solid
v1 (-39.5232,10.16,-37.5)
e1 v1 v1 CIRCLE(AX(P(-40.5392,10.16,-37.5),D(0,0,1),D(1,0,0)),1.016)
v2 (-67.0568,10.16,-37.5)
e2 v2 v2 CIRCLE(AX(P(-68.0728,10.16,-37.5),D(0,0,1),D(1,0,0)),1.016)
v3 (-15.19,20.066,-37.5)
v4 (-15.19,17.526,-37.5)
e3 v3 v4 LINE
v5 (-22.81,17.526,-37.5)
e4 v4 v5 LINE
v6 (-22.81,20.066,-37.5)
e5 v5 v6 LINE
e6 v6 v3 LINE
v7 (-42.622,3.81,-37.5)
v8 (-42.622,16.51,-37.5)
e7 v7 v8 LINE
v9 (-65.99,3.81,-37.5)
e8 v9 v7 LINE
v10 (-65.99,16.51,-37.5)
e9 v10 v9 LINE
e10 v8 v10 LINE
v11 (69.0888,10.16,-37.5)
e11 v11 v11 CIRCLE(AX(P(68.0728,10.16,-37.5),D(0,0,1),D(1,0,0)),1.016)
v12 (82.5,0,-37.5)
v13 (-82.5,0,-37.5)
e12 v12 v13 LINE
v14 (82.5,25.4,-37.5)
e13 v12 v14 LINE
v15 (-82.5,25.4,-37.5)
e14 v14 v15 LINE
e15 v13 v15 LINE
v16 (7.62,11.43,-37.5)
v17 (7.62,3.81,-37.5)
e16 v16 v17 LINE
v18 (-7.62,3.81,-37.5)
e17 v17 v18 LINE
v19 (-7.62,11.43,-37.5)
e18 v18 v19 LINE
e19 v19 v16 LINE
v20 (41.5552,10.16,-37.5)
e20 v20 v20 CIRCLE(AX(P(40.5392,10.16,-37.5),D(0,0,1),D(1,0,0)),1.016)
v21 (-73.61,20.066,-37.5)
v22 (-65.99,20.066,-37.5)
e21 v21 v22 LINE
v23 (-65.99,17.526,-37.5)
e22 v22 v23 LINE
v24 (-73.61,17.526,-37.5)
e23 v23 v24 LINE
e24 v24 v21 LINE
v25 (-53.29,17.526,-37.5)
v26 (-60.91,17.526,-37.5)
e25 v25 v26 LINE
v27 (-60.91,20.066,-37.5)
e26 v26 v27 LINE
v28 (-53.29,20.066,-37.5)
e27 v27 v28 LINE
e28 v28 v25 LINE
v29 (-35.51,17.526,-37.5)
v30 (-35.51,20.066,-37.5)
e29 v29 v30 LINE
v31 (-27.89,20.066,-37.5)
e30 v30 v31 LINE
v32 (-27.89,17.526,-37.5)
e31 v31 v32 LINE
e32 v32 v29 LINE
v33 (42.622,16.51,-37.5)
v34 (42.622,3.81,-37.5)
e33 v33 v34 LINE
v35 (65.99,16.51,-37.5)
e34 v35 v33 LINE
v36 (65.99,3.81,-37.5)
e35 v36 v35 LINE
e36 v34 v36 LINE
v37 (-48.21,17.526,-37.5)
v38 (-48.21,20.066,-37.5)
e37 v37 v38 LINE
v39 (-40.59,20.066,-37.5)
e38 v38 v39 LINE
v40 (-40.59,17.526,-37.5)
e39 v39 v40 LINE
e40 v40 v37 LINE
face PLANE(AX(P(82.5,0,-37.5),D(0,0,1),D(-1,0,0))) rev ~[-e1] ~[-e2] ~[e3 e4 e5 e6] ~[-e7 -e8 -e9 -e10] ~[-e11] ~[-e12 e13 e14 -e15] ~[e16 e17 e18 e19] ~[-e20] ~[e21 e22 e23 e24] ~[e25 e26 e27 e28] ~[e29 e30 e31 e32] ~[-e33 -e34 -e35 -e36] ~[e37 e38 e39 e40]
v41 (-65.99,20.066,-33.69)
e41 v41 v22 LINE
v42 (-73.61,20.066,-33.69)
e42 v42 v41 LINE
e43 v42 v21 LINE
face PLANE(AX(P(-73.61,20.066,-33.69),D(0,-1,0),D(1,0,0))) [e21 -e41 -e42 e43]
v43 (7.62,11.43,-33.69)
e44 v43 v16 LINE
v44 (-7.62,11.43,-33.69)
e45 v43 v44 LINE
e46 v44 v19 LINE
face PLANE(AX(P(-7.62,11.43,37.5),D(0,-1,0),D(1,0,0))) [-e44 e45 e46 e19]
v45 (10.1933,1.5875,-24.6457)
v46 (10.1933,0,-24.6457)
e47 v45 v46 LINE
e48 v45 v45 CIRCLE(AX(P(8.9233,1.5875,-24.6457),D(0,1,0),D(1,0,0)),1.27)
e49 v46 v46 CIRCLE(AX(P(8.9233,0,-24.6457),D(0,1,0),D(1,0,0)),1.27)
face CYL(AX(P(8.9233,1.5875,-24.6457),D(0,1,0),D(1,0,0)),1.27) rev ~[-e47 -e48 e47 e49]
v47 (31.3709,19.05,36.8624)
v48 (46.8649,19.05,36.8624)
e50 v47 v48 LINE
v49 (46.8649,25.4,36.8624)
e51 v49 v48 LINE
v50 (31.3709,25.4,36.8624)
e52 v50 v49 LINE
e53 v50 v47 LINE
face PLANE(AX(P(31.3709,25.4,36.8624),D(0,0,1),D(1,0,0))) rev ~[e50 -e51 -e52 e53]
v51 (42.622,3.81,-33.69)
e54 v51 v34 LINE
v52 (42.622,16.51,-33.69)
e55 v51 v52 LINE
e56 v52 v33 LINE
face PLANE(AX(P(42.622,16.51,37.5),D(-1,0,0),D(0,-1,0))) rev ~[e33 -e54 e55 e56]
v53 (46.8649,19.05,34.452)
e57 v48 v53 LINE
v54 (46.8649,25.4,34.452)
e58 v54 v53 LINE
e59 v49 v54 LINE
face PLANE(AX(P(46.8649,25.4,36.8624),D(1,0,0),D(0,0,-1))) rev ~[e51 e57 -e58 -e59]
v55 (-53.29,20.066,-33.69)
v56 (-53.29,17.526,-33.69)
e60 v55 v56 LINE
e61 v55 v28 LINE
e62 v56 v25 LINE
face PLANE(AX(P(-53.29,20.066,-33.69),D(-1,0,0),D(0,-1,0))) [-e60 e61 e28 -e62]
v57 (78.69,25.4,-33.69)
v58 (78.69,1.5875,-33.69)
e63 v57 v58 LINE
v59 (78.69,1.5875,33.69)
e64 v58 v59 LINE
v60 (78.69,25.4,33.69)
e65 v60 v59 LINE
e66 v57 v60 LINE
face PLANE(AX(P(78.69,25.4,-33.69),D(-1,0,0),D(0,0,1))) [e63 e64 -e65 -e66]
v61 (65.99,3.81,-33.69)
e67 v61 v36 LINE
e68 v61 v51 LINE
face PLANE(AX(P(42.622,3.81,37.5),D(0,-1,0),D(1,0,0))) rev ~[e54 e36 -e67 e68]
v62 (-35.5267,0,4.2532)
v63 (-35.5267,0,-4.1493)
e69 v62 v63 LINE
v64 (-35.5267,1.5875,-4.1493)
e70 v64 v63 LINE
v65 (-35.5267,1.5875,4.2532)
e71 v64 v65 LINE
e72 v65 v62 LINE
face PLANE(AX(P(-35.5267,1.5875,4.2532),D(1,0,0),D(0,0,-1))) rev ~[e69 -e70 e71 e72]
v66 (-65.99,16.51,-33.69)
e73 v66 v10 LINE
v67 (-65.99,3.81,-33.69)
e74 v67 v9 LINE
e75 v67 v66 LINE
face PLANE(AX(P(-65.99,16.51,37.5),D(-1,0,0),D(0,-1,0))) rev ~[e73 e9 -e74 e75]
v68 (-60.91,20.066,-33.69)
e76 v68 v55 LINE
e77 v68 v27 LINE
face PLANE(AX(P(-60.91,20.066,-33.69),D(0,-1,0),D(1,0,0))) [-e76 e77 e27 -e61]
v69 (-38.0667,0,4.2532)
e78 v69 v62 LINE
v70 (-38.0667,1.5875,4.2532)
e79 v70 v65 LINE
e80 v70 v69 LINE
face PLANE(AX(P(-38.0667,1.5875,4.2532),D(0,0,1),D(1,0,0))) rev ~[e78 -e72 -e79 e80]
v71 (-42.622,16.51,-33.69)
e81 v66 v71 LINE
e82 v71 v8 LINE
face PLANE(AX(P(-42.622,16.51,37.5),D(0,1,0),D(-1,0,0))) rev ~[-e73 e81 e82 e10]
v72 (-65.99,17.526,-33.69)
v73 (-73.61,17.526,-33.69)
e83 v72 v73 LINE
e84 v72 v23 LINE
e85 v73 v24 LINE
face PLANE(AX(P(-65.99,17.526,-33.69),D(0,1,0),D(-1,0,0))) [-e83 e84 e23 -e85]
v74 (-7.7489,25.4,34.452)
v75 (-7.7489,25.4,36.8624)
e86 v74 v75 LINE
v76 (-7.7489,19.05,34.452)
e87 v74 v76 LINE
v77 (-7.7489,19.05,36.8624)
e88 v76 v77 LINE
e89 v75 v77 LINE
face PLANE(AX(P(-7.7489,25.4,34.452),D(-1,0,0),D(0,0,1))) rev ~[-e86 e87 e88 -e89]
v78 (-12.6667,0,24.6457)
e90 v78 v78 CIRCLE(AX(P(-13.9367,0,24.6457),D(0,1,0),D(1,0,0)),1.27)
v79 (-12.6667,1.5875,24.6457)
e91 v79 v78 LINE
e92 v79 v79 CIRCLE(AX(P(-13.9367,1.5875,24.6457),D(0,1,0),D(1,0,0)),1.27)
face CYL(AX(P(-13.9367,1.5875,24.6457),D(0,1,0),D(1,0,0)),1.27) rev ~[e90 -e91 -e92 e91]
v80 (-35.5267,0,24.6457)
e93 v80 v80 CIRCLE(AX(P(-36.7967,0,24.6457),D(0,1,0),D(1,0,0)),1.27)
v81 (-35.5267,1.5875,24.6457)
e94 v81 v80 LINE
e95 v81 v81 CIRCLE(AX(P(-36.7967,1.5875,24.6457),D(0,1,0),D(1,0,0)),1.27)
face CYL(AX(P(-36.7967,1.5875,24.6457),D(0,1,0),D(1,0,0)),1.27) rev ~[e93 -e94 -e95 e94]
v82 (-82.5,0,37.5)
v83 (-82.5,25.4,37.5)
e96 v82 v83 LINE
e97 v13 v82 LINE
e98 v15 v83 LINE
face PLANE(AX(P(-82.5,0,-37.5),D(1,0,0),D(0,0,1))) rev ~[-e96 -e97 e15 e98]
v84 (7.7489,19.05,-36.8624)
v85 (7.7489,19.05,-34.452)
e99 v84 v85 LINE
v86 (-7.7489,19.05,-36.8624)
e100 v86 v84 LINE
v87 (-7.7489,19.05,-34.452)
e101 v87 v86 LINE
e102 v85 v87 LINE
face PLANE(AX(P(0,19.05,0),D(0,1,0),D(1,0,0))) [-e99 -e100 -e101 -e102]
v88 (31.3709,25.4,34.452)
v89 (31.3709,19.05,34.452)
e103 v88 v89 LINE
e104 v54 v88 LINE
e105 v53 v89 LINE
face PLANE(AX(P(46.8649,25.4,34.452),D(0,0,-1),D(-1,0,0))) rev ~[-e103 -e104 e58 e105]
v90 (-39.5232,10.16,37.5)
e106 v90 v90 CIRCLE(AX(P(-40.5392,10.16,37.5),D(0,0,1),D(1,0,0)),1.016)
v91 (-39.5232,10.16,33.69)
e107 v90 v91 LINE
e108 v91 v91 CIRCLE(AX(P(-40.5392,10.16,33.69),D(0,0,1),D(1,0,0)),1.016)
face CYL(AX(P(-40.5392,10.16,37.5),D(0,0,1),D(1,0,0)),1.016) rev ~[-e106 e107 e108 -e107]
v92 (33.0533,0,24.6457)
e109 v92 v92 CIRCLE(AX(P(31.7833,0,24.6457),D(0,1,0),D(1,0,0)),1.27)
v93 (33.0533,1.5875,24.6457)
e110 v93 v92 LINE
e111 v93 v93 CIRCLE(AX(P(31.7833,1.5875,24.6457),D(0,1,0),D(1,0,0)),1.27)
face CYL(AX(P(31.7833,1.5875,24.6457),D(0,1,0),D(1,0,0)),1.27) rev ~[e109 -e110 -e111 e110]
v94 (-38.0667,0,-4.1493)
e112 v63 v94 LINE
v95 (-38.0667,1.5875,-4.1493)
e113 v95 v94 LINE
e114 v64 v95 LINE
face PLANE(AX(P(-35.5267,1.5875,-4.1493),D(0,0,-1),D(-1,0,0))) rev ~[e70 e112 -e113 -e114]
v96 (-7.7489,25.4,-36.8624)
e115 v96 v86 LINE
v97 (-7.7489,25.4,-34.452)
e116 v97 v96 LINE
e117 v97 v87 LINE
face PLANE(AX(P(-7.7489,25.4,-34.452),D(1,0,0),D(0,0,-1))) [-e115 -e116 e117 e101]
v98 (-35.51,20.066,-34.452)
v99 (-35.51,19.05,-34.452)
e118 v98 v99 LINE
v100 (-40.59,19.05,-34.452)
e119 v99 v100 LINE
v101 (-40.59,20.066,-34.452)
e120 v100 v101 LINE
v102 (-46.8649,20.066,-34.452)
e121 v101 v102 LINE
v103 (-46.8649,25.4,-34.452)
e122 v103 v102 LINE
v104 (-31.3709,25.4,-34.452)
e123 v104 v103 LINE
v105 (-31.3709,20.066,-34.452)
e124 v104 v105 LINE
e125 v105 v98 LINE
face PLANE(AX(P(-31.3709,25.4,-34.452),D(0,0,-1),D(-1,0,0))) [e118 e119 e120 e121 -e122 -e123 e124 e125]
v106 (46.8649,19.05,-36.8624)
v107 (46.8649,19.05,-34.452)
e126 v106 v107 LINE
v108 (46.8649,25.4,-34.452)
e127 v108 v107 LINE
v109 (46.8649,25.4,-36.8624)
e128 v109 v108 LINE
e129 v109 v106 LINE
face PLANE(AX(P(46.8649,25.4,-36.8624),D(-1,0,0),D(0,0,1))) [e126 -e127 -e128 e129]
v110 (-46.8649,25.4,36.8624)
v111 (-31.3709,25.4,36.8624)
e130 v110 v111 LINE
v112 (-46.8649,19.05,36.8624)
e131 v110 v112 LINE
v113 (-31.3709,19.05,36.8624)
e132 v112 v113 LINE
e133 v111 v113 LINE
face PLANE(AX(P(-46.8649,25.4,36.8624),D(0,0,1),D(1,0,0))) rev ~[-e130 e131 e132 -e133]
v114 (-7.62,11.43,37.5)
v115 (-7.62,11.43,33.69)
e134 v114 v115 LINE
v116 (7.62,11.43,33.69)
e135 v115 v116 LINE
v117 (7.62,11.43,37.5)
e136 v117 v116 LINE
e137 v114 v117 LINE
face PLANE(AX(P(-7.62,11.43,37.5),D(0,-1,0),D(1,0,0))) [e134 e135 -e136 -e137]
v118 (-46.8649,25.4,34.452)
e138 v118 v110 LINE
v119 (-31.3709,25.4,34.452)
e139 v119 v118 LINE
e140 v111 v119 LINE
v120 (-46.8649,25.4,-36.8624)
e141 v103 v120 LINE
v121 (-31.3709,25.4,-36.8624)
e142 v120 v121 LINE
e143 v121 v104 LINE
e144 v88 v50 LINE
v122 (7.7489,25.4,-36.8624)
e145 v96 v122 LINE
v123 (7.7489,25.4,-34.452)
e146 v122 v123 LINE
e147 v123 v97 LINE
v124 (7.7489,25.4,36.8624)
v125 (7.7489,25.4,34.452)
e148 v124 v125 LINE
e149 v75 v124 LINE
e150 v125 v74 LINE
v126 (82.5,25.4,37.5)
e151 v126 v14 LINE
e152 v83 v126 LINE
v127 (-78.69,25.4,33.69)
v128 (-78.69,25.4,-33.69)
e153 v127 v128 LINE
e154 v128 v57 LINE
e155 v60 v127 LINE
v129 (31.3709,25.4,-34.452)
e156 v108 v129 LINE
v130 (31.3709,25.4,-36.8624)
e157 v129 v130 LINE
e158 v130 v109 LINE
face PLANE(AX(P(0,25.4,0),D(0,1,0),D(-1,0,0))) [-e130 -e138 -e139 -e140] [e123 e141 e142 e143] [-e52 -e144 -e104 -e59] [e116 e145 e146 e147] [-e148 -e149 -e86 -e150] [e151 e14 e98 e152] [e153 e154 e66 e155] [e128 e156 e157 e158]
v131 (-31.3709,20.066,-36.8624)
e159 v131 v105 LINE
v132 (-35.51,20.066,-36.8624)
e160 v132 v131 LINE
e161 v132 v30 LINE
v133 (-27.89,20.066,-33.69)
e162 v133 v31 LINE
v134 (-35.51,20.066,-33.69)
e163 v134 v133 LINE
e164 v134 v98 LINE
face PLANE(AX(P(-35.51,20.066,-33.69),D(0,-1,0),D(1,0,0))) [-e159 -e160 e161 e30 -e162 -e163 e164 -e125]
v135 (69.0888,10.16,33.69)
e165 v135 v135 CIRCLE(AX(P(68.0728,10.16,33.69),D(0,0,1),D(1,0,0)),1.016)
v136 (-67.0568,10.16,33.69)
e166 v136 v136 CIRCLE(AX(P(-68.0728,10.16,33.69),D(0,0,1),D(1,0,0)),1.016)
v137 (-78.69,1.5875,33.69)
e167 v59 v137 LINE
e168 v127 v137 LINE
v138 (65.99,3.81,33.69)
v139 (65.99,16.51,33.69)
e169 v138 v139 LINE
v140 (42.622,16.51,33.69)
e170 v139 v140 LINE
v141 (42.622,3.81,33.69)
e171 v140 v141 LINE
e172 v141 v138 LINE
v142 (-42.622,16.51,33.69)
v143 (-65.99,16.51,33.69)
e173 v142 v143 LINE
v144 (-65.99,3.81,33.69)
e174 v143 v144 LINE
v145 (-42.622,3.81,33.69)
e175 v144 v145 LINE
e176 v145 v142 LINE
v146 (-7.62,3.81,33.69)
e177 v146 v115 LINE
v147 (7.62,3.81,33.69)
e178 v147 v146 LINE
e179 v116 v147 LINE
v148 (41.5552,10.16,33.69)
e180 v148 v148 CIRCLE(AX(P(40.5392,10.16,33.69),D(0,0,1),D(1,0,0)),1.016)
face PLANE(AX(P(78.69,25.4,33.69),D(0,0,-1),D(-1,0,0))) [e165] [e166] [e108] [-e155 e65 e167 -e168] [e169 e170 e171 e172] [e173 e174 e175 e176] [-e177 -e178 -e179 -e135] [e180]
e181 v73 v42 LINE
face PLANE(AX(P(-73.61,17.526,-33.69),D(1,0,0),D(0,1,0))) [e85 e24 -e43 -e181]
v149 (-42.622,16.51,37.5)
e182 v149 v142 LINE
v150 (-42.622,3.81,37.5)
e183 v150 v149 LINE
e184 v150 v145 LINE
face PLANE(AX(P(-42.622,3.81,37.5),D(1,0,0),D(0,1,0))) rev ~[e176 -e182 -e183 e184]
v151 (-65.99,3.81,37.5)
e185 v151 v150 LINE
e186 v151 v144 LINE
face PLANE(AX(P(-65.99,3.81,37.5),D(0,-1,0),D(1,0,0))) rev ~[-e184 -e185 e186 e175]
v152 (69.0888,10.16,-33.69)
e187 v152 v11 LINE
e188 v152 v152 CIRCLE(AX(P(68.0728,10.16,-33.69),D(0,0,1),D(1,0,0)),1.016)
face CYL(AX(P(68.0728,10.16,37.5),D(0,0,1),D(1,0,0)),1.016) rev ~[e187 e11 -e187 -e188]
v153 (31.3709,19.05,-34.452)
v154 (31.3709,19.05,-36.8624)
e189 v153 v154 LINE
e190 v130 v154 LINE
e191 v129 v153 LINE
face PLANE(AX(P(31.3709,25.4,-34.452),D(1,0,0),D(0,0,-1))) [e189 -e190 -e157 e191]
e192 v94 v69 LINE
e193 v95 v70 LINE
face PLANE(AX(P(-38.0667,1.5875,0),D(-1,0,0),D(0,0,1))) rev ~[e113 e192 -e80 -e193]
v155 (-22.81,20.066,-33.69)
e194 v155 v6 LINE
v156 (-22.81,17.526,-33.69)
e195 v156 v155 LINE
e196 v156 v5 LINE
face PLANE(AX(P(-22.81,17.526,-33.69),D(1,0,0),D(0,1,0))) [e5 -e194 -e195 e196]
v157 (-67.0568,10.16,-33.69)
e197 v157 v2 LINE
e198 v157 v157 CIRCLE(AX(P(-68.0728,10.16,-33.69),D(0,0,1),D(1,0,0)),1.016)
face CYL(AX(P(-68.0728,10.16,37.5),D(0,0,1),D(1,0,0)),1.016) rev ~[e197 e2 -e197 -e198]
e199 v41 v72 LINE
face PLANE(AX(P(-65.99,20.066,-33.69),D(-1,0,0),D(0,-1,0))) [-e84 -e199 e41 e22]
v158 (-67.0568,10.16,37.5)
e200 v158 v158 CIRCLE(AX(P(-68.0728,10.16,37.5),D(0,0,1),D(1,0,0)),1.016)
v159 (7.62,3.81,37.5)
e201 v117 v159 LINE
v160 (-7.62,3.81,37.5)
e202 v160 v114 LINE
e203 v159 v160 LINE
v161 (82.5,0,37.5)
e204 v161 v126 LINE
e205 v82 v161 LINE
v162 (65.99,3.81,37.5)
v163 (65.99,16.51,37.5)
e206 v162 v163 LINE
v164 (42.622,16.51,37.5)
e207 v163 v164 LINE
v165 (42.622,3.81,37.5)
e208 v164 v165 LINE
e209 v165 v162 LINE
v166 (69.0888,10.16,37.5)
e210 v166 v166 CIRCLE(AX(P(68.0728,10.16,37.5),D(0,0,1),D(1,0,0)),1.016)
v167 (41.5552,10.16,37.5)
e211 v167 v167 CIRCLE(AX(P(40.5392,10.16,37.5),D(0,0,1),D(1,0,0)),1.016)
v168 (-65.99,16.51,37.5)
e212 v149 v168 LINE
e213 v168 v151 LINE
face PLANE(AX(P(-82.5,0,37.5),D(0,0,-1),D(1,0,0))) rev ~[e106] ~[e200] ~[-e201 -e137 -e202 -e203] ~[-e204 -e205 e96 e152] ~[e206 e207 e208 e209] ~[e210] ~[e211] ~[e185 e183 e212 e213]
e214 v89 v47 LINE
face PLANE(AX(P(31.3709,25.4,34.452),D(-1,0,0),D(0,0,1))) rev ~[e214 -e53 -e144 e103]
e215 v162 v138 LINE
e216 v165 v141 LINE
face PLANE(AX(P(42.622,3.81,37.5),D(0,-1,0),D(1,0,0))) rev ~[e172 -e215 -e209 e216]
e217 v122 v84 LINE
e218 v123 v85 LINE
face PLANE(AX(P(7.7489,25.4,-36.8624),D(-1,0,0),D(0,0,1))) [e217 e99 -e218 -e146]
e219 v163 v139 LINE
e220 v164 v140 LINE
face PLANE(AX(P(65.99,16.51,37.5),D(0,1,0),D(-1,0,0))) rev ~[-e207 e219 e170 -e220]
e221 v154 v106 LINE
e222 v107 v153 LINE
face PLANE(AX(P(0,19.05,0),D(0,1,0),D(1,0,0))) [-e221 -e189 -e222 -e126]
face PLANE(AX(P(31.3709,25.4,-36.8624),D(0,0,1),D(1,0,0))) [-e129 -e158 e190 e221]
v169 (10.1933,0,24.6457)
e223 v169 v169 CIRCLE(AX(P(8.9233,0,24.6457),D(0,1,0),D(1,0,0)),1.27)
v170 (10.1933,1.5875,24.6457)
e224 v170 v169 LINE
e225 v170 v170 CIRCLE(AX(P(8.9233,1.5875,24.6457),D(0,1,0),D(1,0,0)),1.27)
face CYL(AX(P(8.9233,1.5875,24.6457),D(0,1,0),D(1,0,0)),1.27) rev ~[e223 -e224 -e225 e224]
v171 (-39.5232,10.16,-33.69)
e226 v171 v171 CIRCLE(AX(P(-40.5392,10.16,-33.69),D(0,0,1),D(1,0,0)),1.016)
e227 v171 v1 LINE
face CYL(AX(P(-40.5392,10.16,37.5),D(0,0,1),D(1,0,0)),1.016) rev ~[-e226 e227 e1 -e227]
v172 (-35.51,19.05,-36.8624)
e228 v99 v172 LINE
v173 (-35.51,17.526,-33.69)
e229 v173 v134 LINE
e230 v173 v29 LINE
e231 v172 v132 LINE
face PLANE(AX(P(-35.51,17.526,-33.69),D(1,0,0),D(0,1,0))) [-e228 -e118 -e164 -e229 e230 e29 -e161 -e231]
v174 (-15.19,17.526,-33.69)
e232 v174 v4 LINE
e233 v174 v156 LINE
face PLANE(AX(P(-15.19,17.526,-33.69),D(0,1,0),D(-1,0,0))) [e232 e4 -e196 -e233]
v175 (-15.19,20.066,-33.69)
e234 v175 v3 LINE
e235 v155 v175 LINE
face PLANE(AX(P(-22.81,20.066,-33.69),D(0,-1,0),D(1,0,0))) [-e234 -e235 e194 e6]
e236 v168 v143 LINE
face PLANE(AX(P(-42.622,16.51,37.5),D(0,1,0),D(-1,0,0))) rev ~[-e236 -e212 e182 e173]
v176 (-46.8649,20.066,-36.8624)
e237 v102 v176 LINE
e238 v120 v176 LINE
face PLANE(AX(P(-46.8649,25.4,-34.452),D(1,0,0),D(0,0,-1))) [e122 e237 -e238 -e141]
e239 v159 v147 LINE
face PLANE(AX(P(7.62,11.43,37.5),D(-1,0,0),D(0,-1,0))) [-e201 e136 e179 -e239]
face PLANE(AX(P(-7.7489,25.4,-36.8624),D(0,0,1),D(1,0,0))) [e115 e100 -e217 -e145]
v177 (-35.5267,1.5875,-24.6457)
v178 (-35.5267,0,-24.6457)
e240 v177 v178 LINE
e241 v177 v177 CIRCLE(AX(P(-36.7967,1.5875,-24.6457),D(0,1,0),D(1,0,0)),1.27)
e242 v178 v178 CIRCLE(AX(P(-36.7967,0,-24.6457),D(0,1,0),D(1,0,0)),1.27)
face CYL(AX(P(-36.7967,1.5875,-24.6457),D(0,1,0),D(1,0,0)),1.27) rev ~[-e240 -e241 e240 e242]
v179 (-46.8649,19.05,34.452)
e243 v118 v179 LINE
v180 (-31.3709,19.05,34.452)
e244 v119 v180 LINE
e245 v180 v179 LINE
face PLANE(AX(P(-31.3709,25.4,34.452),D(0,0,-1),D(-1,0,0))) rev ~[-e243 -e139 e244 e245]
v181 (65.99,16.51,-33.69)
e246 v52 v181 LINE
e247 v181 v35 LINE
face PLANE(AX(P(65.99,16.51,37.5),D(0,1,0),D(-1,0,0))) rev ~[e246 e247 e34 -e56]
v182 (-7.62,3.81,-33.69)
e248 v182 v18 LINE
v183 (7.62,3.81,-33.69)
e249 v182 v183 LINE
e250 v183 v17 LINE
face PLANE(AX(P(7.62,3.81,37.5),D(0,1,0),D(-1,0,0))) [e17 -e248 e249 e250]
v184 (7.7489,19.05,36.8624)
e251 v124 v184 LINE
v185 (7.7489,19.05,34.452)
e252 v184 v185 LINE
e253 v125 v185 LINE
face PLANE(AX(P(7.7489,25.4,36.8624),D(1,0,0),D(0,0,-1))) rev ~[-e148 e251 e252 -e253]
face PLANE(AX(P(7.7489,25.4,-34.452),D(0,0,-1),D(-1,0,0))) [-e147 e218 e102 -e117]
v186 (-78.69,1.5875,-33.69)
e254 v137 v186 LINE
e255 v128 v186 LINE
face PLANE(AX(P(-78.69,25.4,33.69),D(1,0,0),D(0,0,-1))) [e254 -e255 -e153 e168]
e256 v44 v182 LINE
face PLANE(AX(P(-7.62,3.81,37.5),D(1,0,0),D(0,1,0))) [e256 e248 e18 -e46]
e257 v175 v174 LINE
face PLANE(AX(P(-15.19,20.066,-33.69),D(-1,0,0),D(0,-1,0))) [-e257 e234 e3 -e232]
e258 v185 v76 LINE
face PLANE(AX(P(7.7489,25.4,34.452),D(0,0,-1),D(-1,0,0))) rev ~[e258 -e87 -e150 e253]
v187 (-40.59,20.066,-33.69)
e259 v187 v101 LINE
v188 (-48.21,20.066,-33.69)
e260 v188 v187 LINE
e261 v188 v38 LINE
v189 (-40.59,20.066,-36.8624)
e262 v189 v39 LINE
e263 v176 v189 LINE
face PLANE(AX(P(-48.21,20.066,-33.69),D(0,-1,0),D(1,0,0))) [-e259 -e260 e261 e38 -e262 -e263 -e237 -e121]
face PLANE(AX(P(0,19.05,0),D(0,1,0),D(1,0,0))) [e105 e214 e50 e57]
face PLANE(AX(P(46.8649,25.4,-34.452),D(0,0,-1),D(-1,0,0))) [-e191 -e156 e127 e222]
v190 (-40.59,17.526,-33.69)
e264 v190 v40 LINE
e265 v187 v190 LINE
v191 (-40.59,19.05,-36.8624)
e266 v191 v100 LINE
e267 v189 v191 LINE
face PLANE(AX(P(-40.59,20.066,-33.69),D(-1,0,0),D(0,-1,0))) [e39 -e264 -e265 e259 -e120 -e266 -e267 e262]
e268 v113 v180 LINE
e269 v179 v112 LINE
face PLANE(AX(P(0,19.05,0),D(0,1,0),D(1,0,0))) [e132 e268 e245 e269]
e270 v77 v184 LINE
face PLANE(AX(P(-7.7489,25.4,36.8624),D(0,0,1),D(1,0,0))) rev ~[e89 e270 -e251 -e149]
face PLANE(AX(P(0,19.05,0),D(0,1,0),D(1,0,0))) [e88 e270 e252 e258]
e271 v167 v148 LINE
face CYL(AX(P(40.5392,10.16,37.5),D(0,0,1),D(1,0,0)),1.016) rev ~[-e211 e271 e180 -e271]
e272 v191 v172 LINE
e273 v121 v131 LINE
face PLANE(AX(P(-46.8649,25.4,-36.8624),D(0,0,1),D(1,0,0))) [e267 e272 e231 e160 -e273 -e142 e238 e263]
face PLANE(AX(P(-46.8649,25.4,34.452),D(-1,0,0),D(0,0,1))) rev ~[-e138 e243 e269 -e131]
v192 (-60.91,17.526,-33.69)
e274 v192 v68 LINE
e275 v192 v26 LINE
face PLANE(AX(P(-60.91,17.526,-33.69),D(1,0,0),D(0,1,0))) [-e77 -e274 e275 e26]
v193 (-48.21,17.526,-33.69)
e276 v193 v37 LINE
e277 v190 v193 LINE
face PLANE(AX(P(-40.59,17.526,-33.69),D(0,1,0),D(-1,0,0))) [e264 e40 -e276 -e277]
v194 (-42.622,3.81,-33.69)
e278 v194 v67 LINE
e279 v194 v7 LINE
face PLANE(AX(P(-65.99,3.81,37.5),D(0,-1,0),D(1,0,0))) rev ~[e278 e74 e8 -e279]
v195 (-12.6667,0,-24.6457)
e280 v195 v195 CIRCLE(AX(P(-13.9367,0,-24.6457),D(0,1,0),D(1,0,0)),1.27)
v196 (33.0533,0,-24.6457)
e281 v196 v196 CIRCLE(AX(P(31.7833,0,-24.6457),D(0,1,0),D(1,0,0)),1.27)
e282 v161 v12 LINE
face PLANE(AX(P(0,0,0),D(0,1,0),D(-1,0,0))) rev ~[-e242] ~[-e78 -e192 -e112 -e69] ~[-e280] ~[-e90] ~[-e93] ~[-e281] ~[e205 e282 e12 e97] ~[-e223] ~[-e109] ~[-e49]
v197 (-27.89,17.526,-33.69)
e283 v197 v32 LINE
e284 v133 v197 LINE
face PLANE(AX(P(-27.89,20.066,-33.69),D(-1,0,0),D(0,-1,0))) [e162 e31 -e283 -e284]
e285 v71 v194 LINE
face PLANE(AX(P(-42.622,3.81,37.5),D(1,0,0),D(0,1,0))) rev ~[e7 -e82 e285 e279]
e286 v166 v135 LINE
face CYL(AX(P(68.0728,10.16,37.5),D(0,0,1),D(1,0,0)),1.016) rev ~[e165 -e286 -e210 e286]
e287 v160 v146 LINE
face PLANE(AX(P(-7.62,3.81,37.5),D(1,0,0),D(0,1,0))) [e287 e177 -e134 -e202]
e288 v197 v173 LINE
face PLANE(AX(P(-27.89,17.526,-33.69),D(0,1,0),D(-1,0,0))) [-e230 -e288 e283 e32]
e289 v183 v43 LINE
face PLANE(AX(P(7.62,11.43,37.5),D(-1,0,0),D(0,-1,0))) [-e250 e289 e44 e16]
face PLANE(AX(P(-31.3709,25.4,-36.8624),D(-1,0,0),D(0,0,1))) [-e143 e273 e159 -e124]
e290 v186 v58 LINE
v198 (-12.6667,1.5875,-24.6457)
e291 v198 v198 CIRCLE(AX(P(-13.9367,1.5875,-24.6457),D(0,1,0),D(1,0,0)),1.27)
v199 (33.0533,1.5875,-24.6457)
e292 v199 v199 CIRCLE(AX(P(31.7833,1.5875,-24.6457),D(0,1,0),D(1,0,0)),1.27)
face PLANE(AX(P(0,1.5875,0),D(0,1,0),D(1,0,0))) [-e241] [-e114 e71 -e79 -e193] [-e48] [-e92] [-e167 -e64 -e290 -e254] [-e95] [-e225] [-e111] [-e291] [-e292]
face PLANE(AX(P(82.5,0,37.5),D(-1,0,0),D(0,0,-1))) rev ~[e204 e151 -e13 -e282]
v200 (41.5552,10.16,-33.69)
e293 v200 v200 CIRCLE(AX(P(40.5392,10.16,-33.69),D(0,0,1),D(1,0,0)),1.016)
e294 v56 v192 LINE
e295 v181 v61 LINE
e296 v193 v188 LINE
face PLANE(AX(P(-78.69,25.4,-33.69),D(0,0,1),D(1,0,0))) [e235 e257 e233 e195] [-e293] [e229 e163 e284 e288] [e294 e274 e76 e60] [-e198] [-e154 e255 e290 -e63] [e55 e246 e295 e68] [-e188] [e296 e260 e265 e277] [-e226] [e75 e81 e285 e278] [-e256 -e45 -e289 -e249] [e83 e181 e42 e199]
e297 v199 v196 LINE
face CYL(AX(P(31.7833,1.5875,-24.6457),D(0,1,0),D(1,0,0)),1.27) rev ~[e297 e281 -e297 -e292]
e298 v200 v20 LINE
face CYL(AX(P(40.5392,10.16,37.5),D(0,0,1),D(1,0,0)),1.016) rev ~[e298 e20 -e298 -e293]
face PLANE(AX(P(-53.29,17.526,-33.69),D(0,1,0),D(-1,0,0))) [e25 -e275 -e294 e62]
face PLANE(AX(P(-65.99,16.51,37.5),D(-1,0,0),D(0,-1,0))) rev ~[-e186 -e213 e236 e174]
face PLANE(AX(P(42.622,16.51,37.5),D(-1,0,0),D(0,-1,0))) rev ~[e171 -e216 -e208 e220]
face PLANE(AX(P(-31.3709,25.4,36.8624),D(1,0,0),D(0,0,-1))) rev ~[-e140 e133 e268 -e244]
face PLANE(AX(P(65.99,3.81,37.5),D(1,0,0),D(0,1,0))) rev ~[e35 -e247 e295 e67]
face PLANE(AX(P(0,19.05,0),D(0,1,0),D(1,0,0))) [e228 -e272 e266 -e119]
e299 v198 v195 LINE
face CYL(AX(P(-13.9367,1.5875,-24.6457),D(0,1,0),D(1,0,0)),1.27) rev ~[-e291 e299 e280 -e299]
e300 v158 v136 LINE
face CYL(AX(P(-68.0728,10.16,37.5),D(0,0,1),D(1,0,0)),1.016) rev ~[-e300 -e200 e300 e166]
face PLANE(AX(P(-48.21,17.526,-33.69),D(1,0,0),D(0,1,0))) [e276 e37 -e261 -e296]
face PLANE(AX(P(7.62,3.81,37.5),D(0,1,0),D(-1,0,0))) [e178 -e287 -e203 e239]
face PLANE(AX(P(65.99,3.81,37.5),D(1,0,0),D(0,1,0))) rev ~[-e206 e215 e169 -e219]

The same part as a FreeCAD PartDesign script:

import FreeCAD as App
import Part
import Sketcher
from FreeCAD import Vector
Q = App.Units.Quantity

doc = App.newDocument("Part")
body = doc.addObject("PartDesign::Body", "Body")

# Sketch on XZ plane
sketch1 = body.newObject("Sketcher::SketchObject", "Sketch")
sketch1.AttachmentSupport = (doc.getObject("XZ_Plane"), [""])
sketch1.MapMode = "FlatFace"
sketch1.addGeometry([
    Part.LineSegment(Vector(-82.5, -37.5, 0), Vector(-82.5, 37.5, 0)),
    Part.LineSegment(Vector(-82.5, 37.5, 0), Vector(82.5, 37.5, 0)),
    Part.LineSegment(Vector(82.5, 37.5, 0), Vector(82.5, -37.5, 0)),
    Part.LineSegment(Vector(82.5, -37.5, 0), Vector(-82.5, -37.5, 0)),
], False)
sketch1.addConstraint([
    Sketcher.Constraint("Coincident", 0, 2, 1, 1),
    Sketcher.Constraint("Coincident", 1, 2, 2, 1),
    Sketcher.Constraint("Coincident", 2, 2, 3, 1),
    Sketcher.Constraint("Coincident", 3, 2, 0, 1),
    Sketcher.Constraint("Vertical", 0),
    Sketcher.Constraint("Horizontal", 1),
    Sketcher.Constraint("Vertical", 2),
    Sketcher.Constraint("Horizontal", 3),
    Sketcher.Constraint("Symmetric", 0, 2, 2, 2, -1, 1),
    Sketcher.Constraint("DistanceX", 1, 1, 1, 2, Q("165 mm")),
    Sketcher.Constraint("DistanceY", 0, 1, 0, 2, Q("75 mm")),
])
pad1 = body.newObject("PartDesign::Pad", "Pad")
pad1.Profile = sketch1
pad1.Length = Q("1 in")
pad1.Reversed = True

# Sketch on XY plane
sketch2 = body.newObject("Sketcher::SketchObject", "Sketch001")
sketch2.AttachmentSupport = (doc.getObject("XY_Plane"), [""])
sketch2.MapMode = "FlatFace"
sketch2.AttachmentOffset = App.Placement(Vector(0, 0, 37.5), App.Rotation())
sketch2.addGeometry([
    Part.LineSegment(Vector(-42.622, 3.81, 0), Vector(-42.622, 16.51, 0)),  # 0
    Part.LineSegment(Vector(-42.622, 16.51, 0), Vector(-65.99, 16.51, 0)),  # 1
    Part.LineSegment(Vector(-65.99, 16.51, 0), Vector(-65.99, 3.81, 0)),  # 2
    Part.LineSegment(Vector(-65.99, 3.81, 0), Vector(-42.622, 3.81, 0)),  # 3
    Part.Circle(Vector(-68.0728, 10.16, 0), Vector(0, 0, 1), 1.016),  # 4
    Part.Circle(Vector(-40.5392, 10.16, 0), Vector(0, 0, 1), 1.016),  # 5
    Part.LineSegment(Vector(65.99, 3.81, 0), Vector(65.99, 16.51, 0)),  # 6
    Part.LineSegment(Vector(65.99, 16.51, 0), Vector(42.622, 16.51, 0)),  # 7
    Part.LineSegment(Vector(42.622, 16.51, 0), Vector(42.622, 3.81, 0)),  # 8
    Part.LineSegment(Vector(42.622, 3.81, 0), Vector(65.99, 3.81, 0)),  # 9
    Part.Circle(Vector(68.0728, 10.16, 0), Vector(0, 0, 1), 1.016),  # 10
    Part.Circle(Vector(40.5392, 10.16, 0), Vector(0, 0, 1), 1.016),  # 11
    Part.LineSegment(Vector(7.62, 11.43, 0), Vector(-7.62, 11.43, 0)),  # 12
    Part.LineSegment(Vector(-7.62, 11.43, 0), Vector(-7.62, 3.81, 0)),  # 13
    Part.LineSegment(Vector(-7.62, 3.81, 0), Vector(7.62, 3.81, 0)),  # 14
    Part.LineSegment(Vector(7.62, 3.81, 0), Vector(7.62, 11.43, 0)),  # 15
], False)
sketch2.addConstraint([
    Sketcher.Constraint("Coincident", 0, 2, 1, 1),
    Sketcher.Constraint("Coincident", 1, 2, 2, 1),
    Sketcher.Constraint("Coincident", 2, 2, 3, 1),
    Sketcher.Constraint("Coincident", 3, 2, 0, 1),
    Sketcher.Constraint("Coincident", 6, 2, 7, 1),
    Sketcher.Constraint("Coincident", 7, 2, 8, 1),
    Sketcher.Constraint("Coincident", 8, 2, 9, 1),
    Sketcher.Constraint("Coincident", 9, 2, 6, 1),
    Sketcher.Constraint("Coincident", 12, 2, 13, 1),
    Sketcher.Constraint("Coincident", 13, 2, 14, 1),
    Sketcher.Constraint("Coincident", 14, 2, 15, 1),
    Sketcher.Constraint("Coincident", 15, 2, 12, 1),
    Sketcher.Constraint("Vertical", 0),
    Sketcher.Constraint("Horizontal", 1),
    Sketcher.Constraint("Vertical", 2),
    Sketcher.Constraint("Horizontal", 3),
    Sketcher.Constraint("Vertical", 6),
    Sketcher.Constraint("Horizontal", 7),
    Sketcher.Constraint("Vertical", 8),
    Sketcher.Constraint("Horizontal", 9),
    Sketcher.Constraint("Horizontal", 12),
    Sketcher.Constraint("Vertical", 13),
    Sketcher.Constraint("Horizontal", 14),
    Sketcher.Constraint("Vertical", 15),
    Sketcher.Constraint("Equal", 4, 5),
    Sketcher.Constraint("Equal", 5, 10),
    Sketcher.Constraint("Equal", 10, 11),
    Sketcher.Constraint("Symmetric", 4, 3, 10, 3, -2),
    Sketcher.Constraint("Symmetric", 5, 3, 11, 3, -2),
    Sketcher.Constraint("Symmetric", 1, 2, 6, 2, -2),
    Sketcher.Constraint("Symmetric", 3, 2, 8, 2, -2),
    Sketcher.Constraint("Horizontal", 4, 3, 5, 3),
    Sketcher.Constraint("Horizontal", 9, 2, 13, 2),
    Sketcher.Constraint("Diameter", 4, Q("0.08 in")),
    Sketcher.Constraint("DistanceX", 12, 2, 12, 1, Q("0.6 in")),
    Sketcher.Constraint("DistanceY", 0, 1, 0, 2, Q("0.5 in")),
    Sketcher.Constraint("DistanceY", 13, 2, 13, 1, Q("0.3 in")),
    Sketcher.Constraint("DistanceX", 1, 2, 1, 1, Q("0.92 in")),
    Sketcher.Constraint("DistanceY", -1, 1, 4, 3, Q("0.4 in")),
    Sketcher.Constraint("DistanceX", 12, 2, -1, 1, Q("0.3 in")),
    Sketcher.Constraint("DistanceY", -1, 1, 0, 2, Q("0.65 in")),
    Sketcher.Constraint("DistanceX", 0, 2, 5, 3, Q("0.082 in")),
    Sketcher.Constraint("DistanceX", 4, 3, 1, 2, Q("0.082 in")),
    Sketcher.Constraint("DistanceX", 4, 3, -1, 1, Q("68.0728 mm")),
])
pocket1 = body.newObject("PartDesign::Pocket", "Pocket")
pocket1.Profile = sketch2
pocket1.Length = Q("3.9375 in")

# Sketch on XZ plane
sketch3 = body.newObject("Sketcher::SketchObject", "Sketch002")
sketch3.AttachmentSupport = (doc.getObject("XZ_Plane"), [""])
sketch3.MapMode = "FlatFace"
sketch3.AttachmentOffset = App.Placement(Vector(0, 0, -1 * 25.4), App.Rotation())
sketch3.addGeometry([
    Part.LineSegment(Vector(78.69, -33.69, 0), Vector(-78.69, -33.69, 0)),
    Part.LineSegment(Vector(-78.69, -33.69, 0), Vector(-78.69, 33.69, 0)),
    Part.LineSegment(Vector(-78.69, 33.69, 0), Vector(78.69, 33.69, 0)),
    Part.LineSegment(Vector(78.69, 33.69, 0), Vector(78.69, -33.69, 0)),
], False)
sketch3.addConstraint([
    Sketcher.Constraint("Coincident", 0, 2, 1, 1),
    Sketcher.Constraint("Coincident", 1, 2, 2, 1),
    Sketcher.Constraint("Coincident", 2, 2, 3, 1),
    Sketcher.Constraint("Coincident", 3, 2, 0, 1),
    Sketcher.Constraint("Horizontal", 0),
    Sketcher.Constraint("Vertical", 1),
    Sketcher.Constraint("Horizontal", 2),
    Sketcher.Constraint("Vertical", 3),
    Sketcher.Constraint("Symmetric", 0, 2, 2, 2, -1, 1),
    Sketcher.Constraint("DistanceX", 0, 2, 0, 1, Q("157.38 mm")),
    Sketcher.Constraint("DistanceY", 1, 1, 1, 2, Q("67.38 mm")),
])
pocket2 = body.newObject("PartDesign::Pocket", "Pocket001")
pocket2.Profile = sketch3
pocket2.Length = Q("0.9375 in")
pocket2.Reversed = True

# Sketch on XZ plane
sketch4 = body.newObject("Sketcher::SketchObject", "Sketch003")
sketch4.AttachmentSupport = (doc.getObject("XZ_Plane"), [""])
sketch4.MapMode = "FlatFace"
sketch4.AttachmentOffset = App.Placement(Vector(0, 0, -0.0625 * 25.4), App.Rotation())
sketch4.addGeometry([
    Part.Circle(Vector(31.7833, -24.6457, 0), Vector(0, 0, 1), 1.27),  # 0
    Part.Circle(Vector(8.9233, -24.6457, 0), Vector(0, 0, 1), 1.27),  # 1
    Part.Circle(Vector(-13.9367, -24.6457, 0), Vector(0, 0, 1), 1.27),  # 2
    Part.Circle(Vector(-36.7967, -24.6457, 0), Vector(0, 0, 1), 1.27),  # 3
    Part.LineSegment(Vector(-35.5267, 4.2532, 0), Vector(-35.5267, -4.1493, 0)),  # 4
    Part.LineSegment(Vector(-35.5267, -4.1493, 0), Vector(-38.0667, -4.1493, 0)),  # 5
    Part.LineSegment(Vector(-38.0667, -4.1493, 0), Vector(-38.0667, 4.2532, 0)),  # 6
    Part.LineSegment(Vector(-38.0667, 4.2532, 0), Vector(-35.5267, 4.2532, 0)),  # 7
    Part.Circle(Vector(31.7833, 24.6457, 0), Vector(0, 0, 1), 1.27),  # 8
    Part.Circle(Vector(8.9233, 24.6457, 0), Vector(0, 0, 1), 1.27),  # 9
    Part.Circle(Vector(-13.9367, 24.6457, 0), Vector(0, 0, 1), 1.27),  # 10
    Part.Circle(Vector(-36.7967, 24.6457, 0), Vector(0, 0, 1), 1.27),  # 11
], False)
sketch4.addConstraint([
    Sketcher.Constraint("Coincident", 4, 2, 5, 1),
    Sketcher.Constraint("Coincident", 5, 2, 6, 1),
    Sketcher.Constraint("Coincident", 6, 2, 7, 1),
    Sketcher.Constraint("Coincident", 7, 2, 4, 1),
    Sketcher.Constraint("Vertical", 4),
    Sketcher.Constraint("Horizontal", 5),
    Sketcher.Constraint("Vertical", 6),
    Sketcher.Constraint("Horizontal", 7),
    Sketcher.Constraint("Equal", 0, 1),
    Sketcher.Constraint("Equal", 1, 2),
    Sketcher.Constraint("Equal", 2, 3),
    Sketcher.Constraint("Equal", 3, 8),
    Sketcher.Constraint("Equal", 8, 9),
    Sketcher.Constraint("Equal", 9, 10),
    Sketcher.Constraint("Equal", 10, 11),
    Sketcher.Constraint("Symmetric", 0, 3, 8, 3, -1),
    Sketcher.Constraint("Symmetric", 1, 3, 9, 3, -1),
    Sketcher.Constraint("Symmetric", 2, 3, 10, 3, -1),
    Sketcher.Constraint("Symmetric", 3, 3, 11, 3, -1),
    Sketcher.Constraint("Horizontal", 0, 3, 1, 3),
    Sketcher.Constraint("Horizontal", 1, 3, 2, 3),
    Sketcher.Constraint("Horizontal", 2, 3, 3, 3),
    Sketcher.Constraint("Diameter", 0, Q("0.1 in")),
    Sketcher.Constraint("DistanceX", 5, 2, 5, 1, Q("0.1 in")),
    Sketcher.Constraint("DistanceX", 1, 3, 0, 3, Q("0.9 in")),
    Sketcher.Constraint("DistanceX", 2, 3, 1, 3, Q("0.9 in")),
    Sketcher.Constraint("DistanceX", 3, 3, 2, 3, Q("0.9 in")),
    Sketcher.Constraint("DistanceY", 0, 3, 8, 3, Q("1.9406 in")),
    Sketcher.Constraint("DistanceX", 3, 3, 4, 2, Q("0.05 in")),
    Sketcher.Constraint("DistanceY", 6, 2, 11, 3, Q("20.3925 mm")),
    Sketcher.Constraint("DistanceY", 4, 2, 4, 1, Q("0.3308 in")),
    Sketcher.Constraint("DistanceX", -1, 1, 0, 3, Q("1.2513 in")),
])
pocket3 = body.newObject("PartDesign::Pocket", "Pocket002")
pocket3.Profile = sketch4
pocket3.Length = Q("0.875 in")
pocket3.Reversed = True

# Sketch on XZ plane
sketch5 = body.newObject("Sketcher::SketchObject", "Sketch004")
sketch5.AttachmentSupport = (doc.getObject("XZ_Plane"), [""])
sketch5.MapMode = "FlatFace"
sketch5.AttachmentOffset = App.Placement(Vector(0, 0, -1 * 25.4), App.Rotation())
sketch5.addGeometry([
    Part.LineSegment(Vector(-31.3709, -36.8624, 0), Vector(-46.8649, -36.8624, 0)),  # 0
    Part.LineSegment(Vector(-46.8649, -36.8624, 0), Vector(-46.8649, -34.452, 0)),  # 1
    Part.LineSegment(Vector(-46.8649, -34.452, 0), Vector(-31.3709, -34.452, 0)),  # 2
    Part.LineSegment(Vector(-31.3709, -34.452, 0), Vector(-31.3709, -36.8624, 0)),  # 3
    Part.LineSegment(Vector(46.8649, -36.8624, 0), Vector(31.3709, -36.8624, 0)),  # 4
    Part.LineSegment(Vector(31.3709, -36.8624, 0), Vector(31.3709, -34.452, 0)),  # 5
    Part.LineSegment(Vector(31.3709, -34.452, 0), Vector(46.8649, -34.452, 0)),  # 6
    Part.LineSegment(Vector(46.8649, -34.452, 0), Vector(46.8649, -36.8624, 0)),  # 7
    Part.LineSegment(Vector(7.7489, -36.8624, 0), Vector(-7.7489, -36.8624, 0)),  # 8
    Part.LineSegment(Vector(-7.7489, -36.8624, 0), Vector(-7.7489, -34.452, 0)),  # 9
    Part.LineSegment(Vector(-7.7489, -34.452, 0), Vector(7.7489, -34.452, 0)),  # 10
    Part.LineSegment(Vector(7.7489, -34.452, 0), Vector(7.7489, -36.8624, 0)),  # 11
    Part.LineSegment(Vector(-46.8649, 34.452, 0), Vector(-46.8649, 36.8624, 0)),  # 12
    Part.LineSegment(Vector(-46.8649, 36.8624, 0), Vector(-31.3709, 36.8624, 0)),  # 13
    Part.LineSegment(Vector(-31.3709, 36.8624, 0), Vector(-31.3709, 34.452, 0)),  # 14
    Part.LineSegment(Vector(-31.3709, 34.452, 0), Vector(-46.8649, 34.452, 0)),  # 15
    Part.LineSegment(Vector(31.3709, 34.452, 0), Vector(31.3709, 36.8624, 0)),  # 16
    Part.LineSegment(Vector(31.3709, 36.8624, 0), Vector(46.8649, 36.8624, 0)),  # 17
    Part.LineSegment(Vector(46.8649, 36.8624, 0), Vector(46.8649, 34.452, 0)),  # 18
    Part.LineSegment(Vector(46.8649, 34.452, 0), Vector(31.3709, 34.452, 0)),  # 19
    Part.LineSegment(Vector(-7.7489, 34.452, 0), Vector(-7.7489, 36.8624, 0)),  # 20
    Part.LineSegment(Vector(-7.7489, 36.8624, 0), Vector(7.7489, 36.8624, 0)),  # 21
    Part.LineSegment(Vector(7.7489, 36.8624, 0), Vector(7.7489, 34.452, 0)),  # 22
    Part.LineSegment(Vector(7.7489, 34.452, 0), Vector(-7.7489, 34.452, 0)),  # 23
], False)
sketch5.addConstraint([
    Sketcher.Constraint("Coincident", 0, 2, 1, 1),
    Sketcher.Constraint("Coincident", 1, 2, 2, 1),
    Sketcher.Constraint("Coincident", 2, 2, 3, 1),
    Sketcher.Constraint("Coincident", 3, 2, 0, 1),
    Sketcher.Constraint("Coincident", 4, 2, 5, 1),
    Sketcher.Constraint("Coincident", 5, 2, 6, 1),
    Sketcher.Constraint("Coincident", 6, 2, 7, 1),
    Sketcher.Constraint("Coincident", 7, 2, 4, 1),
    Sketcher.Constraint("Coincident", 8, 2, 9, 1),
    Sketcher.Constraint("Coincident", 9, 2, 10, 1),
    Sketcher.Constraint("Coincident", 10, 2, 11, 1),
    Sketcher.Constraint("Coincident", 11, 2, 8, 1),
    Sketcher.Constraint("Coincident", 12, 2, 13, 1),
    Sketcher.Constraint("Coincident", 13, 2, 14, 1),
    Sketcher.Constraint("Coincident", 14, 2, 15, 1),
    Sketcher.Constraint("Coincident", 15, 2, 12, 1),
    Sketcher.Constraint("Coincident", 16, 2, 17, 1),
    Sketcher.Constraint("Coincident", 17, 2, 18, 1),
    Sketcher.Constraint("Coincident", 18, 2, 19, 1),
    Sketcher.Constraint("Coincident", 19, 2, 16, 1),
    Sketcher.Constraint("Coincident", 20, 2, 21, 1),
    Sketcher.Constraint("Coincident", 21, 2, 22, 1),
    Sketcher.Constraint("Coincident", 22, 2, 23, 1),
    Sketcher.Constraint("Coincident", 23, 2, 20, 1),
    Sketcher.Constraint("Horizontal", 0),
    Sketcher.Constraint("Vertical", 1),
    Sketcher.Constraint("Horizontal", 2),
    Sketcher.Constraint("Vertical", 3),
    Sketcher.Constraint("Horizontal", 4),
    Sketcher.Constraint("Vertical", 5),
    Sketcher.Constraint("Horizontal", 6),
    Sketcher.Constraint("Vertical", 7),
    Sketcher.Constraint("Horizontal", 8),
    Sketcher.Constraint("Vertical", 9),
    Sketcher.Constraint("Horizontal", 10),
    Sketcher.Constraint("Vertical", 11),
    Sketcher.Constraint("Vertical", 12),
    Sketcher.Constraint("Horizontal", 13),
    Sketcher.Constraint("Vertical", 14),
    Sketcher.Constraint("Horizontal", 15),
    Sketcher.Constraint("Vertical", 16),
    Sketcher.Constraint("Horizontal", 17),
    Sketcher.Constraint("Vertical", 18),
    Sketcher.Constraint("Horizontal", 19),
    Sketcher.Constraint("Vertical", 20),
    Sketcher.Constraint("Horizontal", 21),
    Sketcher.Constraint("Vertical", 22),
    Sketcher.Constraint("Horizontal", 23),
    Sketcher.Constraint("Symmetric", 7, 2, 12, 2, -1, 1),
    Sketcher.Constraint("Symmetric", 5, 2, 14, 2, -1, 1),
    Sketcher.Constraint("Symmetric", 3, 2, 16, 2, -1, 1),
    Sketcher.Constraint("Symmetric", 1, 2, 18, 2, -1, 1),
    Sketcher.Constraint("Symmetric", 11, 2, 20, 2, -1, 1),
    Sketcher.Constraint("Symmetric", 9, 2, 22, 2, -1, 1),
    Sketcher.Constraint("Symmetric", 3, 2, 4, 2, -2),
    Sketcher.Constraint("Symmetric", 1, 2, 6, 2, -2),
    Sketcher.Constraint("Horizontal", 7, 2, 8, 2),
    Sketcher.Constraint("Horizontal", 6, 2, 9, 2),
    Sketcher.Constraint("Vertical", 9, 2, 20, 2),
    Sketcher.Constraint("DistanceX", 0, 2, 0, 1, Q("0.61 in")),
    Sketcher.Constraint("DistanceX", 3, 2, 8, 2, Q("0.93 in")),
    Sketcher.Constraint("DistanceY", 1, 1, 1, 2, Q("0.0949 in")),
    Sketcher.Constraint("DistanceX", 8, 2, 8, 1, Q("15.4978 mm")),
    Sketcher.Constraint("DistanceY", 0, 2, -1, 1, Q("36.8624 mm")),
])
pocket4 = body.newObject("PartDesign::Pocket", "Pocket003")
pocket4.Profile = sketch5
pocket4.Length = Q("0.25 in")
pocket4.Reversed = True

# Sketch on XY plane
sketch6 = body.newObject("Sketcher::SketchObject", "Sketch005")
sketch6.AttachmentSupport = (doc.getObject("XY_Plane"), [""])
sketch6.MapMode = "FlatFace"
sketch6.AttachmentOffset = App.Placement(Vector(0, 0, -33.69), App.Rotation())
sketch6.addGeometry([
    Part.LineSegment(Vector(-65.99, 20.066, 0), Vector(-73.61, 20.066, 0)),  # 0
    Part.LineSegment(Vector(-73.61, 20.066, 0), Vector(-73.61, 17.526, 0)),  # 1
    Part.LineSegment(Vector(-73.61, 17.526, 0), Vector(-65.99, 17.526, 0)),  # 2
    Part.LineSegment(Vector(-65.99, 17.526, 0), Vector(-65.99, 20.066, 0)),  # 3
    Part.LineSegment(Vector(-53.29, 20.066, 0), Vector(-60.91, 20.066, 0)),  # 4
    Part.LineSegment(Vector(-60.91, 20.066, 0), Vector(-60.91, 17.526, 0)),  # 5
    Part.LineSegment(Vector(-60.91, 17.526, 0), Vector(-53.29, 17.526, 0)),  # 6
    Part.LineSegment(Vector(-53.29, 17.526, 0), Vector(-53.29, 20.066, 0)),  # 7
    Part.LineSegment(Vector(-40.59, 20.066, 0), Vector(-48.21, 20.066, 0)),  # 8
    Part.LineSegment(Vector(-48.21, 20.066, 0), Vector(-48.21, 17.526, 0)),  # 9
    Part.LineSegment(Vector(-48.21, 17.526, 0), Vector(-40.59, 17.526, 0)),  # 10
    Part.LineSegment(Vector(-40.59, 17.526, 0), Vector(-40.59, 20.066, 0)),  # 11
    Part.LineSegment(Vector(-27.89, 20.066, 0), Vector(-35.51, 20.066, 0)),  # 12
    Part.LineSegment(Vector(-35.51, 20.066, 0), Vector(-35.51, 17.526, 0)),  # 13
    Part.LineSegment(Vector(-35.51, 17.526, 0), Vector(-27.89, 17.526, 0)),  # 14
    Part.LineSegment(Vector(-27.89, 17.526, 0), Vector(-27.89, 20.066, 0)),  # 15
    Part.LineSegment(Vector(-15.19, 20.066, 0), Vector(-22.81, 20.066, 0)),  # 16
    Part.LineSegment(Vector(-22.81, 20.066, 0), Vector(-22.81, 17.526, 0)),  # 17
    Part.LineSegment(Vector(-22.81, 17.526, 0), Vector(-15.19, 17.526, 0)),  # 18
    Part.LineSegment(Vector(-15.19, 17.526, 0), Vector(-15.19, 20.066, 0)),  # 19
], False)
sketch6.addConstraint([
    Sketcher.Constraint("Coincident", 0, 2, 1, 1),
    Sketcher.Constraint("Coincident", 1, 2, 2, 1),
    Sketcher.Constraint("Coincident", 2, 2, 3, 1),
    Sketcher.Constraint("Coincident", 3, 2, 0, 1),
    Sketcher.Constraint("Coincident", 4, 2, 5, 1),
    Sketcher.Constraint("Coincident", 5, 2, 6, 1),
    Sketcher.Constraint("Coincident", 6, 2, 7, 1),
    Sketcher.Constraint("Coincident", 7, 2, 4, 1),
    Sketcher.Constraint("Coincident", 8, 2, 9, 1),
    Sketcher.Constraint("Coincident", 9, 2, 10, 1),
    Sketcher.Constraint("Coincident", 10, 2, 11, 1),
    Sketcher.Constraint("Coincident", 11, 2, 8, 1),
    Sketcher.Constraint("Coincident", 12, 2, 13, 1),
    Sketcher.Constraint("Coincident", 13, 2, 14, 1),
    Sketcher.Constraint("Coincident", 14, 2, 15, 1),
    Sketcher.Constraint("Coincident", 15, 2, 12, 1),
    Sketcher.Constraint("Coincident", 16, 2, 17, 1),
    Sketcher.Constraint("Coincident", 17, 2, 18, 1),
    Sketcher.Constraint("Coincident", 18, 2, 19, 1),
    Sketcher.Constraint("Coincident", 19, 2, 16, 1),
    Sketcher.Constraint("Horizontal", 0),
    Sketcher.Constraint("Vertical", 1),
    Sketcher.Constraint("Horizontal", 2),
    Sketcher.Constraint("Vertical", 3),
    Sketcher.Constraint("Horizontal", 4),
    Sketcher.Constraint("Vertical", 5),
    Sketcher.Constraint("Horizontal", 6),
    Sketcher.Constraint("Vertical", 7),
    Sketcher.Constraint("Horizontal", 8),
    Sketcher.Constraint("Vertical", 9),
    Sketcher.Constraint("Horizontal", 10),
    Sketcher.Constraint("Vertical", 11),
    Sketcher.Constraint("Horizontal", 12),
    Sketcher.Constraint("Vertical", 13),
    Sketcher.Constraint("Horizontal", 14),
    Sketcher.Constraint("Vertical", 15),
    Sketcher.Constraint("Horizontal", 16),
    Sketcher.Constraint("Vertical", 17),
    Sketcher.Constraint("Horizontal", 18),
    Sketcher.Constraint("Vertical", 19),
    Sketcher.Constraint("Horizontal", 3, 2, 4, 2),
    Sketcher.Constraint("Horizontal", 2, 2, 5, 2),
    Sketcher.Constraint("Horizontal", 7, 2, 8, 2),
    Sketcher.Constraint("Horizontal", 6, 2, 9, 2),
    Sketcher.Constraint("Horizontal", 11, 2, 12, 2),
    Sketcher.Constraint("Horizontal", 10, 2, 13, 2),
    Sketcher.Constraint("Horizontal", 15, 2, 16, 2),
    Sketcher.Constraint("Horizontal", 14, 2, 17, 2),
    Sketcher.Constraint("Equal", 2, 4),
    Sketcher.Constraint("Equal", 6, 8),
    Sketcher.Constraint("Equal", 10, 12),
    Sketcher.Constraint("Equal", 14, 16),
    Sketcher.Constraint("DistanceX", 0, 2, 0, 1, Q("0.3 in")),
    Sketcher.Constraint("DistanceY", 1, 2, 1, 1, Q("0.1 in")),
    Sketcher.Constraint("DistanceX", 3, 2, 4, 2, Q("0.2 in")),
    Sketcher.Constraint("DistanceX", 7, 2, 8, 2, Q("0.2 in")),
    Sketcher.Constraint("DistanceX", 11, 2, 12, 2, Q("0.2 in")),
    Sketcher.Constraint("DistanceX", 15, 2, 16, 2, Q("0.2 in")),
    Sketcher.Constraint("DistanceY", -1, 1, 0, 2, Q("0.79 in")),
    Sketcher.Constraint("DistanceX", 0, 2, -1, 1, Q("73.61 mm")),
])
pocket5 = body.newObject("PartDesign::Pocket", "Pocket004")
pocket5.Profile = sketch6
pocket5.Length = Q("0.225 in")

doc.recompute()
